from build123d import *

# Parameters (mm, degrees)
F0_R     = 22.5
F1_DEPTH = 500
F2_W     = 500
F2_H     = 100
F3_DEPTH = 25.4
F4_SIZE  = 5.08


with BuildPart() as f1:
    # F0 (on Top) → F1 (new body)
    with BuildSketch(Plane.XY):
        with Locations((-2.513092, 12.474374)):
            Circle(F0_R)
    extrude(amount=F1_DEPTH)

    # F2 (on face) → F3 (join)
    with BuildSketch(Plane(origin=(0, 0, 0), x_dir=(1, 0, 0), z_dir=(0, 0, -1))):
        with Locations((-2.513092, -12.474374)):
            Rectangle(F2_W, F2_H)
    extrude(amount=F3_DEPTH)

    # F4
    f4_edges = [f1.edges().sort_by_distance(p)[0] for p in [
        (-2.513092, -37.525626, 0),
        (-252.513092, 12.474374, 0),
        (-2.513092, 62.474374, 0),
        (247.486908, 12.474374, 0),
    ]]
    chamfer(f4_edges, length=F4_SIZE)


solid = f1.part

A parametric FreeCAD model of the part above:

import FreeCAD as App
import Part
import Sketcher


def edges_at(feature, points):
    """Names of the edges that pass closest to the given points."""
    edges = feature.Shape.Edges
    near = lambda p: min(range(len(edges)), key=lambda i: edges[i].distToShape(Part.Vertex(*p))[0])
    return sorted({f"Edge{near(p) + 1}" for p in points})

doc = App.newDocument("Part")
body = doc.addObject("PartDesign::Body", "Body")

sketch1 = body.newObject("Sketcher::SketchObject", "Sketch")
sketch1.AttachmentSupport = (doc.getObject("XY_Plane"), [""])
sketch1.MapMode = "FlatFace"
sketch1.addGeometry(Part.Circle(App.Vector(-2.513092, 12.474374, 0), App.Vector(0, 0, 1), 22.5), False)
sketch1.addConstraint(Sketcher.Constraint("Diameter", 0, 45.0))
sketch1.addConstraint(Sketcher.Constraint("DistanceX", 0, 3, -1, 1, 2.513092))
sketch1.addConstraint(Sketcher.Constraint("DistanceY", -1, 1, 0, 3, 12.474374))
pad1 = body.newObject("PartDesign::Pad", "Pad")
pad1.Profile = sketch1
pad1.Length = 500

sketch2 = body.newObject("Sketcher::SketchObject", "Sketch001")
sketch2.AttachmentSupport = (doc.getObject("XY_Plane"), [""])
sketch2.MapMode = "FlatFace"
sketch2.addGeometry(Part.LineSegment(App.Vector(-252.513092, -37.525626, 0), App.Vector(-252.513092, 62.474374, 0)), False)
sketch2.addGeometry(Part.LineSegment(App.Vector(-252.513092, 62.474374, 0), App.Vector(247.486908, 62.474374, 0)), False)
sketch2.addGeometry(Part.LineSegment(App.Vector(247.486908, 62.474374, 0), App.Vector(247.486908, -37.525626, 0)), False)
sketch2.addGeometry(Part.LineSegment(App.Vector(247.486908, -37.525626, 0), App.Vector(-252.513092, -37.525626, 0)), False)
sketch2.addConstraint(Sketcher.Constraint("Coincident", 0, 2, 1, 1))
sketch2.addConstraint(Sketcher.Constraint("Coincident", 1, 2, 2, 1))
sketch2.addConstraint(Sketcher.Constraint("Coincident", 2, 2, 3, 1))
sketch2.addConstraint(Sketcher.Constraint("Coincident", 3, 2, 0, 1))
sketch2.addConstraint(Sketcher.Constraint("Vertical", 0))
sketch2.addConstraint(Sketcher.Constraint("Horizontal", 1))
sketch2.addConstraint(Sketcher.Constraint("Vertical", 2))
sketch2.addConstraint(Sketcher.Constraint("Horizontal", 3))
sketch2.addConstraint(Sketcher.Constraint("DistanceX", 1, 1, 1, 2, 500.0))
sketch2.addConstraint(Sketcher.Constraint("DistanceY", 0, 1, 0, 2, 100.0))
sketch2.addConstraint(Sketcher.Constraint("DistanceX", 0, 2, -1, 1, 252.513092))
sketch2.addConstraint(Sketcher.Constraint("DistanceY", -1, 1, 0, 2, 62.474374))
pad2 = body.newObject("PartDesign::Pad", "Pad001")
pad2.Profile = sketch2
pad2.Length = 25.4
pad2.Reversed = True
doc.recompute()

chamfer = body.newObject("PartDesign::Chamfer", "Chamfer")
chamfer.Base = (pad2, edges_at(pad2, [
    (-2.513, -37.526, 0),
    (-252.513, 12.474, 0),
    (-2.513, 62.474, 0),
    (247.487, 12.474, 0),
]))
chamfer.Size = 5.08

doc.recompute()
